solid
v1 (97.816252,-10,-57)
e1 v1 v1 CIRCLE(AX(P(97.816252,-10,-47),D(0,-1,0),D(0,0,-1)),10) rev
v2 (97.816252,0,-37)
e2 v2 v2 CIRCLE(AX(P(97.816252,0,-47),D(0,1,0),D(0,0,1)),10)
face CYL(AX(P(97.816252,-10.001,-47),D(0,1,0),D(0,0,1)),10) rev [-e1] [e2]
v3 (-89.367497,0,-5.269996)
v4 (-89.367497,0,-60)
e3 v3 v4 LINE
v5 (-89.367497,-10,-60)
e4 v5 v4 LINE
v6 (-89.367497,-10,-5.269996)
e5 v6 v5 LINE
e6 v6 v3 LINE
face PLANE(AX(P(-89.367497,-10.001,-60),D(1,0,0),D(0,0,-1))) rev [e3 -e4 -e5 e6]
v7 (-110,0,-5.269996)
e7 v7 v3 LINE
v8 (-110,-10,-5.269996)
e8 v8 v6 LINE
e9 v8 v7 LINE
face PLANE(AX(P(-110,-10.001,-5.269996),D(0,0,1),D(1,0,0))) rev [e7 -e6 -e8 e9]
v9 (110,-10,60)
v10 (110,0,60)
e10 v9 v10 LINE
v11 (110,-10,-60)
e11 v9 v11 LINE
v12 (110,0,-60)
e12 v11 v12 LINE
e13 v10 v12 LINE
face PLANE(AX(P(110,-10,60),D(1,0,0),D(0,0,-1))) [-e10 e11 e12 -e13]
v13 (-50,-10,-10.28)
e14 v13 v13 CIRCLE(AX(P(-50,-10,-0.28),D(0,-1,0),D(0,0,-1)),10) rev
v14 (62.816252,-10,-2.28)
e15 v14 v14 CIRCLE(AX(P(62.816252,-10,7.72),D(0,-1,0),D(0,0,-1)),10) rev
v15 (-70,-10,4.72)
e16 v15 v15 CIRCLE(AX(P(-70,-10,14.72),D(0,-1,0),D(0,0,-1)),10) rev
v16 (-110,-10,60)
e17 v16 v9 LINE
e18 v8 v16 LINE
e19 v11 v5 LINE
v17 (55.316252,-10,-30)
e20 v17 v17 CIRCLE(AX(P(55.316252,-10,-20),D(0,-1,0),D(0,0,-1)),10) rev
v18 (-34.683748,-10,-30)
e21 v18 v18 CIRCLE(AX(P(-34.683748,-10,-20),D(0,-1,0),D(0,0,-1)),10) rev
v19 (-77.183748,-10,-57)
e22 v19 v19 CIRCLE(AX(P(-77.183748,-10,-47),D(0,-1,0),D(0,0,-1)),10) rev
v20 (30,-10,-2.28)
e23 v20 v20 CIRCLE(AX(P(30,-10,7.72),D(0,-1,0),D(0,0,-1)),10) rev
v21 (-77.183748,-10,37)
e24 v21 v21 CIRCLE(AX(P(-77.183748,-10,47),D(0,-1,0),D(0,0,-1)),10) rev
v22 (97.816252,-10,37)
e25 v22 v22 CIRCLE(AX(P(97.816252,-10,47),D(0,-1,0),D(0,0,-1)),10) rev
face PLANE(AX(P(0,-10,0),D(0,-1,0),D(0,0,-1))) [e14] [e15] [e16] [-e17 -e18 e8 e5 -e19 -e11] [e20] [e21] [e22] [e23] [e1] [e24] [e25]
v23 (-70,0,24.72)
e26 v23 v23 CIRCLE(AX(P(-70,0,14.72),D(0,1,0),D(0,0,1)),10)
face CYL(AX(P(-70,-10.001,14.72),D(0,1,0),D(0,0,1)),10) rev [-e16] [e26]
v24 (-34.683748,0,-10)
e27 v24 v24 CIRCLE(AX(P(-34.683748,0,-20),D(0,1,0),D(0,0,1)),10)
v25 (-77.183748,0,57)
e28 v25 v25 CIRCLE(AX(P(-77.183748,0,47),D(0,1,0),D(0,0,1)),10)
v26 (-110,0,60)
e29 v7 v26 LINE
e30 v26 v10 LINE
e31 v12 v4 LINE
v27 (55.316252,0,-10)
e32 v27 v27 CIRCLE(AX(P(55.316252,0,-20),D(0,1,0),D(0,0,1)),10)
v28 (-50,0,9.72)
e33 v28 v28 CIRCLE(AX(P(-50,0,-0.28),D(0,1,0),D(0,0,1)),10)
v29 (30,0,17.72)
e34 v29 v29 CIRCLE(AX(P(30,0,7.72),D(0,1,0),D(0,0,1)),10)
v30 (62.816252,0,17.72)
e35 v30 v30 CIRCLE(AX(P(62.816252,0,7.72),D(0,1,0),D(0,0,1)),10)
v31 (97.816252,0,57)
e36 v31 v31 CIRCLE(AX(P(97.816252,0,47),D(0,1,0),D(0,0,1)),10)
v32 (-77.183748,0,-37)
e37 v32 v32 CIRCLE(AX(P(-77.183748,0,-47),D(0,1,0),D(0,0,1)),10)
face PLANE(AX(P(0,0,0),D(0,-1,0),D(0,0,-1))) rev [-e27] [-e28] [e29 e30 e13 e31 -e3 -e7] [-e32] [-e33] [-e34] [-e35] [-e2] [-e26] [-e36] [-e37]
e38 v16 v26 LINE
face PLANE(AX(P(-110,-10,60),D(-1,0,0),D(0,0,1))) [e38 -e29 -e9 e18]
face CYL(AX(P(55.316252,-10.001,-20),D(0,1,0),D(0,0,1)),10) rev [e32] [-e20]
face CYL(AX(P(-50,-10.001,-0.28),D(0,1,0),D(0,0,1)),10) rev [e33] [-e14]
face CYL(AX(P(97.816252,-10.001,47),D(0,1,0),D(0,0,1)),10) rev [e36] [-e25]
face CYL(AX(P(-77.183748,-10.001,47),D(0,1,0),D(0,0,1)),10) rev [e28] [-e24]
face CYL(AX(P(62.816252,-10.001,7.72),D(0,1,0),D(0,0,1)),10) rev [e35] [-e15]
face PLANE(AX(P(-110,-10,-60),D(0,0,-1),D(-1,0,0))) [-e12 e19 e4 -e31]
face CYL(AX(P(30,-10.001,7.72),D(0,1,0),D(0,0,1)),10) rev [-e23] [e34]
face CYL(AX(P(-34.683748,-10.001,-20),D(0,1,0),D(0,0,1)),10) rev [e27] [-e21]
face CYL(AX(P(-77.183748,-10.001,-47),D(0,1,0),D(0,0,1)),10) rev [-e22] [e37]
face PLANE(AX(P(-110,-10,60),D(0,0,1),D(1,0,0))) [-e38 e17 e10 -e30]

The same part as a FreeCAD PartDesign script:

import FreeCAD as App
import Part
import Sketcher

V = App.Vector
Q = App.Units.Quantity


def add_polygon(sketch, points):
    """Adds a closed chain of lines whose ends are joined by coincident constraints."""
    first, n = sketch.GeometryCount, len(points)
    for a, b in zip(points, points[1:] + points[:1]):
        sketch.addGeometry(Part.LineSegment(App.Vector(*a, 0), App.Vector(*b, 0)), False)
    for i in range(n):
        sketch.addConstraint(Sketcher.Constraint("Coincident", first + i, 2, first + (i + 1) % n, 1))

doc = App.newDocument("Part")
body = doc.addObject("PartDesign::Body", "Body")

# Sketch on XZ plane
sketch1 = doc.addObject("Sketcher::SketchObject", "Sketch")
body.addObject(sketch1)
sketch1.AttachmentSupport = (doc.XZ_Plane, [""])
sketch1.MapMode = "FlatFace"
add_polygon(sketch1, [(-110, -60), (-110, 60), (110, 60), (110, -60)])  # lines 0-3
sketch1.addConstraint([
    Sketcher.Constraint("Vertical", 0),
    Sketcher.Constraint("Horizontal", 1),
    Sketcher.Constraint("Vertical", 2),
    Sketcher.Constraint("Horizontal", 3),
    Sketcher.Constraint("Symmetric", 0, 2, 2, 2, -1, 1),
    Sketcher.Constraint("DistanceX", 1, 1, 1, 2, Q("220 mm")),
    Sketcher.Constraint("DistanceY", 0, 1, 0, 2, Q("120 mm")),
])
pad1 = doc.addObject("PartDesign::Pad", "Pad")
body.addObject(pad1)
pad1.Profile = sketch1
pad1.Length = 10

# Sketch on XZ plane
sketch2 = doc.addObject("Sketcher::SketchObject", "Sketch001")
body.addObject(sketch2)
sketch2.AttachmentSupport = (doc.XZ_Plane, [""])
sketch2.MapMode = "FlatFace"
add_polygon(sketch2, [(-110, -60), (-110, -5), (-89, -5), (-89, -60)])  # lines 0-3
sketch2.addConstraint([
    Sketcher.Constraint("Vertical", 0),
    Sketcher.Constraint("Horizontal", 1),
    Sketcher.Constraint("Vertical", 2),
    Sketcher.Constraint("Horizontal", 3),
    Sketcher.Constraint("DistanceX", 0, 2, -1, 1, Q("110 mm")),
    Sketcher.Constraint("DistanceY", 2, 2, -1, 1, Q("60 mm")),
    Sketcher.Constraint("DistanceX", 1, 1, 1, 2, Q("20.632503 mm")),
    Sketcher.Constraint("DistanceY", 0, 1, 0, 2, Q("54.730004 mm")),
])
pocket1 = doc.addObject("PartDesign::Pocket", "Pocket")
body.addObject(pocket1)
pocket1.Profile = sketch2
pocket1.Type = "UpToFirst"
pocket1.Reversed = True

# Sketch on XZ plane
sketch3 = doc.addObject("Sketcher::SketchObject", "Sketch002")
body.addObject(sketch3)
sketch3.AttachmentSupport = (doc.XZ_Plane, [""])
sketch3.MapMode = "FlatFace"
sketch3.addGeometry(Part.Circle(V(98, 47, 0), V(0, 0, 1), 10), False)
sketch3.addConstraint([
    Sketcher.Constraint("Diameter", 0, Q("20 mm")),
    Sketcher.Constraint("DistanceY", -1, 1, 0, 3, Q("47 mm")),
    Sketcher.Constraint("DistanceX", -1, 1, 0, 3, Q("97.816252 mm")),
])
pocket2 = doc.addObject("PartDesign::Pocket", "Pocket001")
body.addObject(pocket2)
pocket2.Profile = sketch3
pocket2.Type = "UpToFirst"
pocket2.Reversed = True

# Sketch on XZ plane
sketch4 = doc.addObject("Sketcher::SketchObject", "Sketch003")
body.addObject(sketch4)
sketch4.AttachmentSupport = (doc.XZ_Plane, [""])
sketch4.MapMode = "FlatFace"
sketch4.addGeometry(Part.Circle(V(-77, 47, 0), V(0, 0, 1), 10), False)
sketch4.addConstraint([
    Sketcher.Constraint("Diameter", 0, Q("20 mm")),
    Sketcher.Constraint("DistanceY", -1, 1, 0, 3, Q("47 mm")),
    Sketcher.Constraint("DistanceX", 0, 3, -1, 1, Q("77.183748 mm")),
])
pocket3 = doc.addObject("PartDesign::Pocket", "Pocket002")
body.addObject(pocket3)
pocket3.Profile = sketch4
pocket3.Type = "UpToFirst"
pocket3.Reversed = True

# Sketch on XZ plane
sketch5 = doc.addObject("Sketcher::SketchObject", "Sketch004")
body.addObject(sketch5)
sketch5.AttachmentSupport = (doc.XZ_Plane, [""])
sketch5.MapMode = "FlatFace"
sketch5.addGeometry(Part.Circle(V(-70, 15, 0), V(0, 0, 1), 10), False)
sketch5.addConstraint([
    Sketcher.Constraint("Diameter", 0, Q("20 mm")),
    Sketcher.Constraint("DistanceX", 0, 3, -1, 1, Q("70 mm")),
    Sketcher.Constraint("DistanceY", -1, 1, 0, 3, Q("14.72 mm")),
])
pocket4 = doc.addObject("PartDesign::Pocket", "Pocket003")
body.addObject(pocket4)
pocket4.Profile = sketch5
pocket4.Type = "UpToFirst"
pocket4.Reversed = True

# Sketch on XZ plane
sketch6 = doc.addObject("Sketcher::SketchObject", "Sketch005")
body.addObject(sketch6)
sketch6.AttachmentSupport = (doc.XZ_Plane, [""])
sketch6.MapMode = "FlatFace"
sketch6.addGeometry(Part.Circle(V(-50, 0, 0), V(0, 0, 1), 10), False)
sketch6.addConstraint([
    Sketcher.Constraint("Diameter", 0, Q("20 mm")),
    Sketcher.Constraint("DistanceX", 0, 3, -1, 1, Q("50 mm")),
    Sketcher.Constraint("DistanceY", 0, 3, -1, 1, Q("0.28 mm")),
])
pocket5 = doc.addObject("PartDesign::Pocket", "Pocket004")
body.addObject(pocket5)
pocket5.Profile = sketch6
pocket5.Type = "UpToFirst"
pocket5.Reversed = True

# Sketch on XZ plane
sketch7 = doc.addObject("Sketcher::SketchObject", "Sketch006")
body.addObject(sketch7)
sketch7.AttachmentSupport = (doc.XZ_Plane, [""])
sketch7.MapMode = "FlatFace"
sketch7.addGeometry(Part.Circle(V(30, 8, 0), V(0, 0, 1), 10), False)
sketch7.addConstraint([
    Sketcher.Constraint("Diameter", 0, Q("20 mm")),
    Sketcher.Constraint("DistanceX", -1, 1, 0, 3, Q("30 mm")),
    Sketcher.Constraint("DistanceY", -1, 1, 0, 3, Q("7.72 mm")),
])
pocket6 = doc.addObject("PartDesign::Pocket", "Pocket005")
body.addObject(pocket6)
pocket6.Profile = sketch7
pocket6.Type = "UpToFirst"
pocket6.Reversed = True

# Sketch on XZ plane
sketch8 = doc.addObject("Sketcher::SketchObject", "Sketch007")
body.addObject(sketch8)
sketch8.AttachmentSupport = (doc.XZ_Plane, [""])
sketch8.MapMode = "FlatFace"
sketch8.addGeometry(Part.Circle(V(63, 8, 0), V(0, 0, 1), 10), False)
sketch8.addConstraint([
    Sketcher.Constraint("Diameter", 0, Q("20 mm")),
    Sketcher.Constraint("DistanceY", -1, 1, 0, 3, Q("7.72 mm")),
    Sketcher.Constraint("DistanceX", -1, 1, 0, 3, Q("62.816252 mm")),
])
pocket7 = doc.addObject("PartDesign::Pocket", "Pocket006")
body.addObject(pocket7)
pocket7.Profile = sketch8
pocket7.Type = "UpToFirst"
pocket7.Reversed = True

# Sketch on XZ plane
sketch9 = doc.addObject("Sketcher::SketchObject", "Sketch008")
body.addObject(sketch9)
sketch9.AttachmentSupport = (doc.XZ_Plane, [""])
sketch9.MapMode = "FlatFace"
sketch9.addGeometry(Part.Circle(V(55, -20, 0), V(0, 0, 1), 10), False)
sketch9.addConstraint([
    Sketcher.Constraint("Diameter", 0, Q("20 mm")),
    Sketcher.Constraint("DistanceY", 0, 3, -1, 1, Q("20 mm")),
    Sketcher.Constraint("DistanceX", -1, 1, 0, 3, Q("55.316252 mm")),
])
pocket8 = doc.addObject("PartDesign::Pocket", "Pocket007")
body.addObject(pocket8)
pocket8.Profile = sketch9
pocket8.Type = "UpToFirst"
pocket8.Reversed = True

# Sketch on XZ plane
sketch10 = doc.addObject("Sketcher::SketchObject", "Sketch009")
body.addObject(sketch10)
sketch10.AttachmentSupport = (doc.XZ_Plane, [""])
sketch10.MapMode = "FlatFace"
sketch10.addGeometry(Part.Circle(V(98, -47, 0), V(0, 0, 1), 10), False)
sketch10.addConstraint([
    Sketcher.Constraint("Diameter", 0, Q("20 mm")),
    Sketcher.Constraint("DistanceY", 0, 3, -1, 1, Q("47 mm")),
    Sketcher.Constraint("DistanceX", -1, 1, 0, 3, Q("97.816252 mm")),
])
pocket9 = doc.addObject("PartDesign::Pocket", "Pocket008")
body.addObject(pocket9)
pocket9.Profile = sketch10
pocket9.Type = "UpToFirst"
pocket9.Reversed = True

# Sketch on XZ plane
sketch11 = doc.addObject("Sketcher::SketchObject", "Sketch010")
body.addObject(sketch11)
sketch11.AttachmentSupport = (doc.XZ_Plane, [""])
sketch11.MapMode = "FlatFace"
sketch11.addGeometry(Part.Circle(V(-35, -20, 0), V(0, 0, 1), 10), False)
sketch11.addConstraint([
    Sketcher.Constraint("Diameter", 0, Q("20 mm")),
    Sketcher.Constraint("DistanceY", 0, 3, -1, 1, Q("20 mm")),
    Sketcher.Constraint("DistanceX", 0, 3, -1, 1, Q("34.683748 mm")),
])
pocket10 = doc.addObject("PartDesign::Pocket", "Pocket009")
body.addObject(pocket10)
pocket10.Profile = sketch11
pocket10.Type = "UpToFirst"
pocket10.Reversed = True

# Sketch on XZ plane
sketch12 = doc.addObject("Sketcher::SketchObject", "Sketch011")
body.addObject(sketch12)
sketch12.AttachmentSupport = (doc.XZ_Plane, [""])
sketch12.MapMode = "FlatFace"
sketch12.addGeometry(Part.Circle(V(-77, -47, 0), V(0, 0, 1), 10), False)
sketch12.addConstraint([
    Sketcher.Constraint("Diameter", 0, Q("20 mm")),
    Sketcher.Constraint("DistanceY", 0, 3, -1, 1, Q("47 mm")),
    Sketcher.Constraint("DistanceX", 0, 3, -1, 1, Q("77.183748 mm")),
])
pocket11 = doc.addObject("PartDesign::Pocket", "Pocket010")
body.addObject(pocket11)
pocket11.Profile = sketch12
pocket11.Type = "UpToFirst"
pocket11.Reversed = True

doc.recompute()
